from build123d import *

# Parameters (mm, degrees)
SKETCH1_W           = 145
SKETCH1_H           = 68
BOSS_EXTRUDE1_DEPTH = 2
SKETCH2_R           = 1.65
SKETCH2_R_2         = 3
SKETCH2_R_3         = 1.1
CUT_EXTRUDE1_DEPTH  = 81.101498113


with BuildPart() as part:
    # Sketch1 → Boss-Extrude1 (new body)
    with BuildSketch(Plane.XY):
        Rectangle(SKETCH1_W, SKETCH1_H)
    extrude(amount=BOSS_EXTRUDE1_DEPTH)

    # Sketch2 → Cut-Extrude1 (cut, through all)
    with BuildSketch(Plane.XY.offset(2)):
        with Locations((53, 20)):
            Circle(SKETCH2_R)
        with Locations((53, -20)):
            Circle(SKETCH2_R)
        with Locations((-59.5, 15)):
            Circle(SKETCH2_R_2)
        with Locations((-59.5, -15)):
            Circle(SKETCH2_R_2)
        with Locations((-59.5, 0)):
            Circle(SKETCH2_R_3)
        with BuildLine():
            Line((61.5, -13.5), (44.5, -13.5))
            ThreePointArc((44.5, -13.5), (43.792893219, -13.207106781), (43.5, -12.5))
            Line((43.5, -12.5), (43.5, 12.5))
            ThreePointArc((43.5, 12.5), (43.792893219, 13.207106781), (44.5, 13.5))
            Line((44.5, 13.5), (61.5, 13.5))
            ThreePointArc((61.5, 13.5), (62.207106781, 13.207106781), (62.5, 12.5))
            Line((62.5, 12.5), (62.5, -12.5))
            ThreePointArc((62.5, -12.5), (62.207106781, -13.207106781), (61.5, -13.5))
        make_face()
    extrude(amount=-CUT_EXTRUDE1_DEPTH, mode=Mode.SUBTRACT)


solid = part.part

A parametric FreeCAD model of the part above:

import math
import FreeCAD as App
import Part
import Sketcher

V = App.Vector
Q = App.Units.Quantity


def add_polygon(sketch, points):
    """Adds a closed chain of lines whose ends are joined by coincident constraints."""
    first, n = sketch.GeometryCount, len(points)
    for a, b in zip(points, points[1:] + points[:1]):
        sketch.addGeometry(Part.LineSegment(App.Vector(*a, 0), App.Vector(*b, 0)), False)
    for i in range(n):
        sketch.addConstraint(Sketcher.Constraint("Coincident", first + i, 2, first + (i + 1) % n, 1))

doc = App.newDocument("Part")
body = doc.addObject("PartDesign::Body", "Body")

# Sketch on XY plane
sketch1 = body.newObject("Sketcher::SketchObject", "Sketch")
sketch1.AttachmentSupport = (doc.getObject("XY_Plane"), [""])
sketch1.MapMode = "FlatFace"
add_polygon(sketch1, [(-72, 34), (-72, -34), (72, -34), (72, 34)])  # lines 0-3
sketch1.addConstraint([
    Sketcher.Constraint("Vertical", 0),
    Sketcher.Constraint("Horizontal", 1),
    Sketcher.Constraint("Vertical", 2),
    Sketcher.Constraint("Horizontal", 3),
    Sketcher.Constraint("Symmetric", 0, 2, 2, 2, -1, 1),
    Sketcher.Constraint("DistanceX", 1, 1, 1, 2, Q("145 mm")),
    Sketcher.Constraint("DistanceY", 0, 2, 0, 1, Q("68 mm")),
])
pad1 = body.newObject("PartDesign::Pad", "Pad")
pad1.Profile = sketch1
pad1.Length = 2

# Sketch on XY plane
sketch2 = body.newObject("Sketcher::SketchObject", "Sketch001")
sketch2.AttachmentSupport = (doc.getObject("XY_Plane"), [""])
sketch2.MapMode = "FlatFace"
sketch2.AttachmentOffset = App.Placement(V(0, 0, 2), App.Rotation())
sketch2.addGeometry([
    Part.Circle(V(53, 20, 0), V(0, 0, 1), 1.6),  # 0
    Part.Circle(V(53, -20, 0), V(0, 0, 1), 1.6),  # 1
    Part.Circle(V(-59.5, 15, 0), V(0, 0, 1), 3),  # 2
    Part.Circle(V(-59.5, -15, 0), V(0, 0, 1), 3),  # 3
    Part.Circle(V(-59.5, 0, 0), V(0, 0, 1), 1.1),  # 4
    Part.LineSegment(V(44.5, -13.5, 0), V(61.5, -13.5, 0)),  # 5
    Part.ArcOfCircle(Part.Circle(V(61.5, -12.5, 0), V(0, 0, 1), 1), math.radians(-90), math.radians(0)),  # 6
    Part.LineSegment(V(62.5, -12.5, 0), V(62.5, 12.5, 0)),  # 7
    Part.ArcOfCircle(Part.Circle(V(61.5, 12.5, 0), V(0, 0, 1), 1), math.radians(0), math.radians(90)),  # 8
    Part.LineSegment(V(61.5, 13.5, 0), V(44.5, 13.5, 0)),  # 9
    Part.ArcOfCircle(Part.Circle(V(44.5, 12.5, 0), V(0, 0, 1), 1), math.radians(90), math.radians(180)),  # 10
    Part.LineSegment(V(43.5, 12.5, 0), V(43.5, -12.5, 0)),  # 11
    Part.ArcOfCircle(Part.Circle(V(44.5, -12.5, 0), V(0, 0, 1), 1), math.radians(-180), math.radians(-90)),  # 12
], False)
sketch2.addConstraint([
    Sketcher.Constraint("Tangent", 5, 2, 6, 1),
    Sketcher.Constraint("Tangent", 6, 2, 7, 1),
    Sketcher.Constraint("Tangent", 7, 2, 8, 1),
    Sketcher.Constraint("Tangent", 8, 2, 9, 1),
    Sketcher.Constraint("Tangent", 9, 2, 10, 1),
    Sketcher.Constraint("Tangent", 10, 2, 11, 1),
    Sketcher.Constraint("Tangent", 11, 2, 12, 1),
    Sketcher.Constraint("Tangent", 12, 2, 5, 1),
    Sketcher.Constraint("Horizontal", 5),
    Sketcher.Constraint("Vertical", 7),
    Sketcher.Constraint("Horizontal", 9),
    Sketcher.Constraint("Vertical", 11),
    Sketcher.Constraint("Equal", 0, 1),
    Sketcher.Constraint("Equal", 2, 3),
    Sketcher.Constraint("Equal", 6, 8),
    Sketcher.Constraint("Equal", 8, 10),
    Sketcher.Constraint("Equal", 10, 12),
    Sketcher.Constraint("Symmetric", 0, 3, 1, 3, -1),
    Sketcher.Constraint("Symmetric", 2, 3, 3, 3, -1),
    Sketcher.Constraint("PointOnObject", 4, 3, -1),
    Sketcher.Constraint("Vertical", 3, 3, 4, 3),
    Sketcher.Constraint("Diameter", 2, Q("6 mm")),
    Sketcher.Constraint("Radius", 6, Q("1 mm")),
    Sketcher.Constraint("Diameter", 0, Q("3.3 mm")),
    Sketcher.Constraint("Diameter", 4, Q("2.2 mm")),
    Sketcher.Constraint("DistanceX", 5, 1, 5, 2, Q("17 mm")),
    Sketcher.Constraint("DistanceY", 7, 1, 7, 2, Q("25 mm")),
    Sketcher.Constraint("DistanceX", -1, 1, 0, 3, Q("53 mm")),
    Sketcher.Constraint("DistanceY", -1, 1, 0, 3, Q("20 mm")),
    Sketcher.Constraint("DistanceY", -1, 1, 2, 3, Q("15 mm")),
    Sketcher.Constraint("DistanceX", 3, 3, 6, 3, Q("121 mm")),
    Sketcher.Constraint("DistanceX", 2, 3, -1, 1, Q("59.5 mm")),
    Sketcher.Constraint("DistanceY", 6, 3, -1, 1, Q("12.5 mm")),
])
pocket1 = body.newObject("PartDesign::Pocket", "Pocket")
pocket1.Profile = sketch2
pocket1.Type = "ThroughAll"

doc.recompute()
